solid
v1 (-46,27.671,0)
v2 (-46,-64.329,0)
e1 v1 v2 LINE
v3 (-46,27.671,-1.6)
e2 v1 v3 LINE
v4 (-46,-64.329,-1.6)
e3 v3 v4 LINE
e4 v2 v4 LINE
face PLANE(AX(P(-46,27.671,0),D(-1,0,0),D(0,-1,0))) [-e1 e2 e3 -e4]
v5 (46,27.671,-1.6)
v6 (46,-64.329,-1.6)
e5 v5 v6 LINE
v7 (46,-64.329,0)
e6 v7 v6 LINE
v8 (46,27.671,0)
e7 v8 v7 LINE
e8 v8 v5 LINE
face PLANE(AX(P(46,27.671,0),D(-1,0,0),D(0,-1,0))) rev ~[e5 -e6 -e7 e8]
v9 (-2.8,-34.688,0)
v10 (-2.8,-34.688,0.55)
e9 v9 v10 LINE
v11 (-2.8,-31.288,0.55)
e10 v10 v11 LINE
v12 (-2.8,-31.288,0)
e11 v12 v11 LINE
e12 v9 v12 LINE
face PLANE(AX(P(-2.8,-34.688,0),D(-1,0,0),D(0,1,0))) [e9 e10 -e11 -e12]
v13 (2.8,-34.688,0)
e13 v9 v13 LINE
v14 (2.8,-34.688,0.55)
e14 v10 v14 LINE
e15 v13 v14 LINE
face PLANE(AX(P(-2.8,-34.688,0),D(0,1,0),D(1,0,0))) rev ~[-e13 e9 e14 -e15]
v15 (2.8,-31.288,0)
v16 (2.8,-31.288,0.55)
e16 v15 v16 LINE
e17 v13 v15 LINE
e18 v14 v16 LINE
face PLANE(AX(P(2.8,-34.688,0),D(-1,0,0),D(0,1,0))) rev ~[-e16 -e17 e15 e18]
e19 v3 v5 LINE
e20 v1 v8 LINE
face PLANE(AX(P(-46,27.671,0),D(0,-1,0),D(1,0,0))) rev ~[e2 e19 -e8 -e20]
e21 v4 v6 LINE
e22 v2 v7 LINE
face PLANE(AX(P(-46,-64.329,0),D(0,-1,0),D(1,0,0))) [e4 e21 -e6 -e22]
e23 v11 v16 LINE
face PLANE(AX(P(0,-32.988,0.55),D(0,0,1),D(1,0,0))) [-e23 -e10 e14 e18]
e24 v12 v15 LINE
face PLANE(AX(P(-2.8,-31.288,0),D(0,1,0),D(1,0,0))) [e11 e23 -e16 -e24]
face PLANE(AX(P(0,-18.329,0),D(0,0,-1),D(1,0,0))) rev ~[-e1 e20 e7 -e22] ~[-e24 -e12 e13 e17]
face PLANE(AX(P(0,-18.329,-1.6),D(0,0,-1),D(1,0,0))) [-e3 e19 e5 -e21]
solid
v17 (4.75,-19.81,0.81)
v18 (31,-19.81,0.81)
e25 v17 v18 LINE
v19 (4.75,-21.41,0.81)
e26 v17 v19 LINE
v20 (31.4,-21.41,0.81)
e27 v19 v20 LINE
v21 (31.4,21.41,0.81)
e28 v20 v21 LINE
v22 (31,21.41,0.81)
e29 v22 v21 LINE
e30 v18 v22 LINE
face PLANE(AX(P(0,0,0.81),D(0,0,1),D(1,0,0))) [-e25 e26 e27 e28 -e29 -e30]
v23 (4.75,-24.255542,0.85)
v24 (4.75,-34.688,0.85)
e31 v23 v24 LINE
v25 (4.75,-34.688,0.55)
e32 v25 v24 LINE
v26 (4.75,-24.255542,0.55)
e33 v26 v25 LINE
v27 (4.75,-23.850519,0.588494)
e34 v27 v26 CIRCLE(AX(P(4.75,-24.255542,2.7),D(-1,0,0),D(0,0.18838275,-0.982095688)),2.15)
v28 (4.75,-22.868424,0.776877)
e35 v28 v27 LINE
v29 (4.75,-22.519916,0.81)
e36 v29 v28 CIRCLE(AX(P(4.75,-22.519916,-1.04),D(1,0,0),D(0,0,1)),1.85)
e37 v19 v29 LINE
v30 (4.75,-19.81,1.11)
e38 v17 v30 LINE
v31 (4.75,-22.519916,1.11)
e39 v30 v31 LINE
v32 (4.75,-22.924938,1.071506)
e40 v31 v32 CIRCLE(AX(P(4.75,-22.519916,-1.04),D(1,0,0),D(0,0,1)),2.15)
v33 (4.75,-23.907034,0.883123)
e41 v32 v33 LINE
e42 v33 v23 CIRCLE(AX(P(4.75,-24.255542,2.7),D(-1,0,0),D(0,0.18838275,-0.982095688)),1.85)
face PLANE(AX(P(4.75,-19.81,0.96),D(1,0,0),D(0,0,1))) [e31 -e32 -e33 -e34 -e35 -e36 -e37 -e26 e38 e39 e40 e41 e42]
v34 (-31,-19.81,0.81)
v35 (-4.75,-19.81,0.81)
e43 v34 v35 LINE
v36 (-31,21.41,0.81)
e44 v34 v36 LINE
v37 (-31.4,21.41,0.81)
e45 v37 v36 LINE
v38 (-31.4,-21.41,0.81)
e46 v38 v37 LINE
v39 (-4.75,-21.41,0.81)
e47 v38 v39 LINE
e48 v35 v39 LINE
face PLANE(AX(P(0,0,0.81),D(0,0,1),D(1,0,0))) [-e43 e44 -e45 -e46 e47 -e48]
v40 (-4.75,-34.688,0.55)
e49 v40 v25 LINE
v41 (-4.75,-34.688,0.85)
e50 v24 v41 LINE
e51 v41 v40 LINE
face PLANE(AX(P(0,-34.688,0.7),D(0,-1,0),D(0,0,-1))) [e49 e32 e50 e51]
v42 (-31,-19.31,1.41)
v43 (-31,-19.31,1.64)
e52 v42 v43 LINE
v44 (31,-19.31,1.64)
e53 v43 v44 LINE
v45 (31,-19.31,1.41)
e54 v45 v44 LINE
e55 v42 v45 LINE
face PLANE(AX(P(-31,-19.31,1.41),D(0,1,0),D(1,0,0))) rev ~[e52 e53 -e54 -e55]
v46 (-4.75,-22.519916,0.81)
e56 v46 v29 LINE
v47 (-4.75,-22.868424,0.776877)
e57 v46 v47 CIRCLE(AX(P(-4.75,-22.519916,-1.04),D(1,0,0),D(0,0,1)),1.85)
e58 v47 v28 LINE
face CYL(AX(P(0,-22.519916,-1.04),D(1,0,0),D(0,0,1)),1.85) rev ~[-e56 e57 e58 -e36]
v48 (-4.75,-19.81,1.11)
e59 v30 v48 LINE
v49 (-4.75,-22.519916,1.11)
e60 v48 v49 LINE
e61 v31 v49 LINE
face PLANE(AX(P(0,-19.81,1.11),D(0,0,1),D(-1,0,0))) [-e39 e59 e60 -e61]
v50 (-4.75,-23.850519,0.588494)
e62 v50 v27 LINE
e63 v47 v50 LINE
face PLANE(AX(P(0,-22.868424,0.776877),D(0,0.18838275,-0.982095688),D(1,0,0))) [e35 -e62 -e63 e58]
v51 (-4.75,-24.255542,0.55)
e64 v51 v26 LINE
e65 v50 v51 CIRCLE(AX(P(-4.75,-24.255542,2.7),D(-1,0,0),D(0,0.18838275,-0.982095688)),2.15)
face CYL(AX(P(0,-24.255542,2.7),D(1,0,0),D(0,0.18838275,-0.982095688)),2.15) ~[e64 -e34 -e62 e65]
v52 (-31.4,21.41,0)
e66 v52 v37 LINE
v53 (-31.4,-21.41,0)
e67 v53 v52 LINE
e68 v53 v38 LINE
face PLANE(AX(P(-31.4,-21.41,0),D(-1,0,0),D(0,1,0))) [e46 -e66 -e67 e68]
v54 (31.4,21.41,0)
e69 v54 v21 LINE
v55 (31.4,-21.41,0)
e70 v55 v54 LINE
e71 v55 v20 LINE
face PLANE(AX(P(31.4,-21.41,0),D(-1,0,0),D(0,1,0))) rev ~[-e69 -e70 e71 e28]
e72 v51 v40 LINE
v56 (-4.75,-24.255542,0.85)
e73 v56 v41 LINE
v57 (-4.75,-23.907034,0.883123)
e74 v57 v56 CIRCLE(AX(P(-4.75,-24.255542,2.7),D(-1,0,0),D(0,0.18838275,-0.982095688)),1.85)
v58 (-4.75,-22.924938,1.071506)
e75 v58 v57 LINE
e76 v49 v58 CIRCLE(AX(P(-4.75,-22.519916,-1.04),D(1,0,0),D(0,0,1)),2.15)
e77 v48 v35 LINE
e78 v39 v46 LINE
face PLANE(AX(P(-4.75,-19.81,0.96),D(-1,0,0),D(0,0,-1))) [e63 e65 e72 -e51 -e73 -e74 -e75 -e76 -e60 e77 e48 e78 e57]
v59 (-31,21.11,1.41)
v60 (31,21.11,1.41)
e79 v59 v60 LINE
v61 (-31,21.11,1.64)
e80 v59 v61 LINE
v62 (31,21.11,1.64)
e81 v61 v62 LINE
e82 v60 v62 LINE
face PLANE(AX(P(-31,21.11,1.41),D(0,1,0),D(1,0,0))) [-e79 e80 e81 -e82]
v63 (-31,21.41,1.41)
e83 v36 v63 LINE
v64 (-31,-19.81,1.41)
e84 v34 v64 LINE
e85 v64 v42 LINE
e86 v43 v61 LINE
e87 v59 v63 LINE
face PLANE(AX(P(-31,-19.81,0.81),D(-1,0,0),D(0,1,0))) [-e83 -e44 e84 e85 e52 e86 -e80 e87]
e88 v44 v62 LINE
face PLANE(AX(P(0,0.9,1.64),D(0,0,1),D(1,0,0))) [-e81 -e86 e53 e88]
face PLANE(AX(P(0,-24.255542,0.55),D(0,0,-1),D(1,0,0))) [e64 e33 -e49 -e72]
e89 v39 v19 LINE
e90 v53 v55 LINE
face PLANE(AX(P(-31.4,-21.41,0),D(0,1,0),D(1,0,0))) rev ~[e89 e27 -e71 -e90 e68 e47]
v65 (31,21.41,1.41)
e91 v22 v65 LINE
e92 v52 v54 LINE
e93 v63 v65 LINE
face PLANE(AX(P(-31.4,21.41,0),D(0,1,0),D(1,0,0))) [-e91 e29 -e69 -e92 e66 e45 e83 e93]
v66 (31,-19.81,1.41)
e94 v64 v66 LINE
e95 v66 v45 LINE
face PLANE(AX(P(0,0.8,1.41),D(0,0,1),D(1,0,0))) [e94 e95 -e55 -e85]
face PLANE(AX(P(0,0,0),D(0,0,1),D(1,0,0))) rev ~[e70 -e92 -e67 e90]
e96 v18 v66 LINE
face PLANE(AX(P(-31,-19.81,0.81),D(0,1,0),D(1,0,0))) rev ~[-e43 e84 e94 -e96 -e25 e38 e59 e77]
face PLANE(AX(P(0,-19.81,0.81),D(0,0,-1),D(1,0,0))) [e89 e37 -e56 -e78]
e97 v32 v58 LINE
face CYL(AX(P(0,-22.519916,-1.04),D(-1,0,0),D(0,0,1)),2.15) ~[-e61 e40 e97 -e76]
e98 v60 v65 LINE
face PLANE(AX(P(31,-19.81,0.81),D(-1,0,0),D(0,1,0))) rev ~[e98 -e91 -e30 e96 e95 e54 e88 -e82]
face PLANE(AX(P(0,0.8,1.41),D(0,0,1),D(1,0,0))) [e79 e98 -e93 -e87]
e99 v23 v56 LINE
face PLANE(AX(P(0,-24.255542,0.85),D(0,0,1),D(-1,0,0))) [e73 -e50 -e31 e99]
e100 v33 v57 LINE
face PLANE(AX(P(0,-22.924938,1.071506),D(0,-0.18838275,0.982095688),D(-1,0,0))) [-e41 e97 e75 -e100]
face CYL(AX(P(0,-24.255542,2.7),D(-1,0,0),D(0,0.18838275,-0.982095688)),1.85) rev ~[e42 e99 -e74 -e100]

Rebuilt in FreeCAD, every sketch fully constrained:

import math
import FreeCAD as App
import Part
import Sketcher
from FreeCAD import Vector
Q = App.Units.Quantity

doc = App.newDocument("Part")
body = doc.addObject("PartDesign::Body", "Body")

sketch1 = doc.addObject("Sketcher::SketchObject", "Sketch")
body.addObject(sketch1)
sketch1.AttachmentSupport = (doc.XY_Plane, [""])
sketch1.MapMode = "FlatFace"
sketch1.addGeometry(Part.LineSegment(Vector(-31, 21, 0), Vector(-31, -21, 0)), False)
sketch1.addGeometry(Part.LineSegment(Vector(-31, -21, 0), Vector(31, -21, 0)), False)
sketch1.addGeometry(Part.LineSegment(Vector(31, -21, 0), Vector(31, 21, 0)), False)
sketch1.addGeometry(Part.LineSegment(Vector(31, 21, 0), Vector(-31, 21, 0)), False)
sketch1.addConstraint(Sketcher.Constraint("Coincident", 0, 2, 1, 1))
sketch1.addConstraint(Sketcher.Constraint("Coincident", 1, 2, 2, 1))
sketch1.addConstraint(Sketcher.Constraint("Coincident", 2, 2, 3, 1))
sketch1.addConstraint(Sketcher.Constraint("Coincident", 3, 2, 0, 1))
sketch1.addConstraint(Sketcher.Constraint("Vertical", 0))
sketch1.addConstraint(Sketcher.Constraint("Horizontal", 1))
sketch1.addConstraint(Sketcher.Constraint("Vertical", 2))
sketch1.addConstraint(Sketcher.Constraint("Horizontal", 3))
sketch1.addConstraint(Sketcher.Constraint("Symmetric", 0, 2, 2, 2, -1, 1))
sketch1.addConstraint(Sketcher.Constraint("DistanceX", 1, 1, 1, 2, Q("62.8 mm")))
sketch1.addConstraint(Sketcher.Constraint("DistanceY", 0, 2, 0, 1, Q("42.82 mm")))
pad1 = doc.addObject("PartDesign::Pad", "Pad")
body.addObject(pad1)
pad1.Profile = sketch1
pad1.Length = 0.81

sketch2 = doc.addObject("Sketcher::SketchObject", "Sketch001")
body.addObject(sketch2)
sketch2.AttachmentSupport = (doc.XY_Plane, [""])
sketch2.MapMode = "FlatFace"
sketch2.AttachmentOffset = App.Placement(Vector(0, 0, 0.81), App.Rotation())
sketch2.addGeometry(Part.LineSegment(Vector(-31, 21, 0), Vector(-31, -20, 0)), False)
sketch2.addGeometry(Part.LineSegment(Vector(-31, -20, 0), Vector(31, -20, 0)), False)
sketch2.addGeometry(Part.LineSegment(Vector(31, -20, 0), Vector(31, 21, 0)), False)
sketch2.addGeometry(Part.LineSegment(Vector(31, 21, 0), Vector(-31, 21, 0)), False)
sketch2.addConstraint(Sketcher.Constraint("Coincident", 0, 2, 1, 1))
sketch2.addConstraint(Sketcher.Constraint("Coincident", 1, 2, 2, 1))
sketch2.addConstraint(Sketcher.Constraint("Coincident", 2, 2, 3, 1))
sketch2.addConstraint(Sketcher.Constraint("Coincident", 3, 2, 0, 1))
sketch2.addConstraint(Sketcher.Constraint("Vertical", 0))
sketch2.addConstraint(Sketcher.Constraint("Horizontal", 1))
sketch2.addConstraint(Sketcher.Constraint("Vertical", 2))
sketch2.addConstraint(Sketcher.Constraint("Horizontal", 3))
sketch2.addConstraint(Sketcher.Constraint("DistanceX", 1, 1, 1, 2, Q("62 mm")))
sketch2.addConstraint(Sketcher.Constraint("DistanceX", 0, 2, -1, 1, Q("31 mm")))
sketch2.addConstraint(Sketcher.Constraint("DistanceY", 0, 2, 0, 1, Q("41.22 mm")))
sketch2.addConstraint(Sketcher.Constraint("DistanceY", 0, 2, -1, 1, Q("19.81 mm")))
pad2 = doc.addObject("PartDesign::Pad", "Pad001")
body.addObject(pad2)
pad2.Profile = sketch2
pad2.Length = 0.6

sketch3 = doc.addObject("Sketcher::SketchObject", "Sketch002")
body.addObject(sketch3)
sketch3.AttachmentSupport = (doc.XY_Plane, [""])
sketch3.MapMode = "FlatFace"
sketch3.AttachmentOffset = App.Placement(Vector(0, 0, 1.41), App.Rotation())
sketch3.addGeometry(Part.LineSegment(Vector(-31, 21, 0), Vector(-31, -19, 0)), False)
sketch3.addGeometry(Part.LineSegment(Vector(-31, -19, 0), Vector(31, -19, 0)), False)
sketch3.addGeometry(Part.LineSegment(Vector(31, -19, 0), Vector(31, 21, 0)), False)
sketch3.addGeometry(Part.LineSegment(Vector(31, 21, 0), Vector(-31, 21, 0)), False)
sketch3.addConstraint(Sketcher.Constraint("Coincident", 0, 2, 1, 1))
sketch3.addConstraint(Sketcher.Constraint("Coincident", 1, 2, 2, 1))
sketch3.addConstraint(Sketcher.Constraint("Coincident", 2, 2, 3, 1))
sketch3.addConstraint(Sketcher.Constraint("Coincident", 3, 2, 0, 1))
sketch3.addConstraint(Sketcher.Constraint("Vertical", 0))
sketch3.addConstraint(Sketcher.Constraint("Horizontal", 1))
sketch3.addConstraint(Sketcher.Constraint("Vertical", 2))
sketch3.addConstraint(Sketcher.Constraint("Horizontal", 3))
sketch3.addConstraint(Sketcher.Constraint("DistanceX", 1, 1, 1, 2, Q("62 mm")))
sketch3.addConstraint(Sketcher.Constraint("DistanceX", 0, 2, -1, 1, Q("31 mm")))
sketch3.addConstraint(Sketcher.Constraint("DistanceY", 0, 2, 0, 1, Q("40.42 mm")))
sketch3.addConstraint(Sketcher.Constraint("DistanceY", 0, 2, -1, 1, Q("19.31 mm")))
pad3 = doc.addObject("PartDesign::Pad", "Pad002")
body.addObject(pad3)
pad3.Profile = sketch3
pad3.Length = 0.23

sketch4 = doc.addObject("Sketcher::SketchObject", "Sketch003")
body.addObject(sketch4)
sketch4.AttachmentSupport = (doc.XZ_Plane, [""])
sketch4.MapMode = "FlatFace"
sketch4.AttachmentOffset = App.Placement(Vector(0, 0, 19.81), App.Rotation())
sketch4.addGeometry(Part.LineSegment(Vector(-4.75, 1.11, 0), Vector(-4.75, 0.81, 0)), False)
sketch4.addGeometry(Part.LineSegment(Vector(-4.75, 0.81, 0), Vector(4.75, 0.81, 0)), False)
sketch4.addGeometry(Part.LineSegment(Vector(4.75, 0.81, 0), Vector(4.75, 1.11, 0)), False)
sketch4.addGeometry(Part.LineSegment(Vector(4.75, 1.11, 0), Vector(-4.75, 1.11, 0)), False)
sketch4.addConstraint(Sketcher.Constraint("Coincident", 0, 2, 1, 1))
sketch4.addConstraint(Sketcher.Constraint("Coincident", 1, 2, 2, 1))
sketch4.addConstraint(Sketcher.Constraint("Coincident", 2, 2, 3, 1))
sketch4.addConstraint(Sketcher.Constraint("Coincident", 3, 2, 0, 1))
sketch4.addConstraint(Sketcher.Constraint("Vertical", 0))
sketch4.addConstraint(Sketcher.Constraint("Horizontal", 1))
sketch4.addConstraint(Sketcher.Constraint("Vertical", 2))
sketch4.addConstraint(Sketcher.Constraint("Horizontal", 3))
sketch4.addConstraint(Sketcher.Constraint("DistanceX", 1, 1, 1, 2, Q("9.5 mm")))
sketch4.addConstraint(Sketcher.Constraint("DistanceY", 0, 2, 0, 1, Q("0.3 mm")))
sketch4.addConstraint(Sketcher.Constraint("DistanceX", 0, 2, -1, 1, Q("4.75 mm")))
sketch4.addConstraint(Sketcher.Constraint("DistanceY", -1, 1, 0, 2, Q("0.81 mm")))

sketch5 = doc.addObject("Sketcher::SketchObject", "Sketch004")
body.addObject(sketch5)
sketch5.AttachmentSupport = (doc.YZ_Plane, [""])
sketch5.MapMode = "FlatFace"
sketch5.addGeometry(Part.LineSegment(Vector(-19.81, 0.96, 0), Vector(-22.52, 0.96, 0)), False)
sketch5.addGeometry(Part.ArcOfCircle(Part.Circle(Vector(-22.52, -1.04, 0), Vector(0, 0, 1), 2), math.radians(90), math.radians(100.86)), False)
sketch5.addGeometry(Part.LineSegment(Vector(-22.9, 0.92, 0), Vector(-23.88, 0.74, 0)), False)
sketch5.addGeometry(Part.ArcOfCircle(Part.Circle(Vector(-24.26, 2.7, 0), Vector(0, 0, 1), 2), math.radians(-90), math.radians(-79.14)), False)
sketch5.addGeometry(Part.LineSegment(Vector(-24.26, 0.7, 0), Vector(-34.69, 0.7, 0)), False)
sketch5.addConstraint(Sketcher.Constraint("Tangent", 0, 2, 1, 1))
sketch5.addConstraint(Sketcher.Constraint("Tangent", 1, 2, 2, 1))
sketch5.addConstraint(Sketcher.Constraint("Tangent", 2, 2, 3, 2))
sketch5.addConstraint(Sketcher.Constraint("Tangent", 3, 1, 4, 1))
sketch5.addConstraint(Sketcher.Constraint("Horizontal", 0))
sketch5.addConstraint(Sketcher.Constraint("Horizontal", 4))
sketch5.addConstraint(Sketcher.Constraint("Equal", 1, 3))
sketch5.addConstraint(Sketcher.Constraint("Radius", 1, Q("2 mm")))
sketch5.addConstraint(Sketcher.Constraint("Distance", 2, Q("1 mm")))
sketch5.addConstraint(Sketcher.Constraint("DistanceY", -1, 1, 3, 3, Q("2.7 mm")))
sketch5.addConstraint(Sketcher.Constraint("DistanceY", 1, 3, -1, 1, Q("1.04 mm")))
sketch5.addConstraint(Sketcher.Constraint("DistanceX", 0, 1, -1, 1, Q("19.81 mm")))
sketch5.addConstraint(Sketcher.Constraint("DistanceX", 4, 2, -1, 1, Q("34.688 mm")))
sketch5.addConstraint(Sketcher.Constraint("DistanceX", 0, 2, 0, 1, Q("2.709916 mm")))
doc.recompute()

additivepipe = doc.addObject("PartDesign::AdditivePipe", "AdditivePipe")
body.addObject(additivepipe)
additivepipe.Profile = sketch4
additivepipe.Spine = (sketch5, ["Edge1", "Edge2", "Edge3", "Edge4", "Edge5"])
body2 = doc.addObject("PartDesign::Body", "Body001")

sketch6 = doc.addObject("Sketcher::SketchObject", "Sketch005")
body2.addObject(sketch6)
sketch6.AttachmentSupport = (doc.getObject("XY_Plane001"), [""])
sketch6.MapMode = "FlatFace"
sketch6.addGeometry(Part.LineSegment(Vector(-46, -64, 0), Vector(-46, 28, 0)), False)
sketch6.addGeometry(Part.LineSegment(Vector(-46, 28, 0), Vector(46, 28, 0)), False)
sketch6.addGeometry(Part.LineSegment(Vector(46, 28, 0), Vector(46, -64, 0)), False)
sketch6.addGeometry(Part.LineSegment(Vector(46, -64, 0), Vector(-46, -64, 0)), False)
sketch6.addConstraint(Sketcher.Constraint("Coincident", 0, 2, 1, 1))
sketch6.addConstraint(Sketcher.Constraint("Coincident", 1, 2, 2, 1))
sketch6.addConstraint(Sketcher.Constraint("Coincident", 2, 2, 3, 1))
sketch6.addConstraint(Sketcher.Constraint("Coincident", 3, 2, 0, 1))
sketch6.addConstraint(Sketcher.Constraint("Vertical", 0))
sketch6.addConstraint(Sketcher.Constraint("Horizontal", 1))
sketch6.addConstraint(Sketcher.Constraint("Vertical", 2))
sketch6.addConstraint(Sketcher.Constraint("Horizontal", 3))
sketch6.addConstraint(Sketcher.Constraint("Equal", 3, 0))
sketch6.addConstraint(Sketcher.Constraint("DistanceX", 1, 1, 1, 2, Q("92 mm")))
sketch6.addConstraint(Sketcher.Constraint("DistanceX", 0, 2, -1, 1, Q("46 mm")))
sketch6.addConstraint(Sketcher.Constraint("DistanceY", -1, 1, 0, 2, Q("27.671 mm")))
pad4 = doc.addObject("PartDesign::Pad", "Pad003")
body2.addObject(pad4)
pad4.Profile = sketch6
pad4.Length = 1.6
pad4.Reversed = True

sketch7 = doc.addObject("Sketcher::SketchObject", "Sketch006")
body2.addObject(sketch7)
sketch7.AttachmentSupport = (doc.getObject("XY_Plane001"), [""])
sketch7.MapMode = "FlatFace"
sketch7.addGeometry(Part.LineSegment(Vector(-2.8, -31.3, 0), Vector(-2.8, -34.7, 0)), False)
sketch7.addGeometry(Part.LineSegment(Vector(-2.8, -34.7, 0), Vector(2.8, -34.7, 0)), False)
sketch7.addGeometry(Part.LineSegment(Vector(2.8, -34.7, 0), Vector(2.8, -31.3, 0)), False)
sketch7.addGeometry(Part.LineSegment(Vector(2.8, -31.3, 0), Vector(-2.8, -31.3, 0)), False)
sketch7.addConstraint(Sketcher.Constraint("Coincident", 0, 2, 1, 1))
sketch7.addConstraint(Sketcher.Constraint("Coincident", 1, 2, 2, 1))
sketch7.addConstraint(Sketcher.Constraint("Coincident", 2, 2, 3, 1))
sketch7.addConstraint(Sketcher.Constraint("Coincident", 3, 2, 0, 1))
sketch7.addConstraint(Sketcher.Constraint("Vertical", 0))
sketch7.addConstraint(Sketcher.Constraint("Horizontal", 1))
sketch7.addConstraint(Sketcher.Constraint("Vertical", 2))
sketch7.addConstraint(Sketcher.Constraint("Horizontal", 3))
sketch7.addConstraint(Sketcher.Constraint("DistanceX", 1, 1, 1, 2, Q("5.6 mm")))
sketch7.addConstraint(Sketcher.Constraint("DistanceY", 0, 2, 0, 1, Q("3.4 mm")))
sketch7.addConstraint(Sketcher.Constraint("DistanceX", 0, 2, -1, 1, Q("2.8 mm")))
sketch7.addConstraint(Sketcher.Constraint("DistanceY", 0, 2, -1, 1, Q("34.688 mm")))
pad5 = doc.addObject("PartDesign::Pad", "Pad004")
body2.addObject(pad5)
pad5.Profile = sketch7
pad5.Length = 0.55

doc.recompute()
